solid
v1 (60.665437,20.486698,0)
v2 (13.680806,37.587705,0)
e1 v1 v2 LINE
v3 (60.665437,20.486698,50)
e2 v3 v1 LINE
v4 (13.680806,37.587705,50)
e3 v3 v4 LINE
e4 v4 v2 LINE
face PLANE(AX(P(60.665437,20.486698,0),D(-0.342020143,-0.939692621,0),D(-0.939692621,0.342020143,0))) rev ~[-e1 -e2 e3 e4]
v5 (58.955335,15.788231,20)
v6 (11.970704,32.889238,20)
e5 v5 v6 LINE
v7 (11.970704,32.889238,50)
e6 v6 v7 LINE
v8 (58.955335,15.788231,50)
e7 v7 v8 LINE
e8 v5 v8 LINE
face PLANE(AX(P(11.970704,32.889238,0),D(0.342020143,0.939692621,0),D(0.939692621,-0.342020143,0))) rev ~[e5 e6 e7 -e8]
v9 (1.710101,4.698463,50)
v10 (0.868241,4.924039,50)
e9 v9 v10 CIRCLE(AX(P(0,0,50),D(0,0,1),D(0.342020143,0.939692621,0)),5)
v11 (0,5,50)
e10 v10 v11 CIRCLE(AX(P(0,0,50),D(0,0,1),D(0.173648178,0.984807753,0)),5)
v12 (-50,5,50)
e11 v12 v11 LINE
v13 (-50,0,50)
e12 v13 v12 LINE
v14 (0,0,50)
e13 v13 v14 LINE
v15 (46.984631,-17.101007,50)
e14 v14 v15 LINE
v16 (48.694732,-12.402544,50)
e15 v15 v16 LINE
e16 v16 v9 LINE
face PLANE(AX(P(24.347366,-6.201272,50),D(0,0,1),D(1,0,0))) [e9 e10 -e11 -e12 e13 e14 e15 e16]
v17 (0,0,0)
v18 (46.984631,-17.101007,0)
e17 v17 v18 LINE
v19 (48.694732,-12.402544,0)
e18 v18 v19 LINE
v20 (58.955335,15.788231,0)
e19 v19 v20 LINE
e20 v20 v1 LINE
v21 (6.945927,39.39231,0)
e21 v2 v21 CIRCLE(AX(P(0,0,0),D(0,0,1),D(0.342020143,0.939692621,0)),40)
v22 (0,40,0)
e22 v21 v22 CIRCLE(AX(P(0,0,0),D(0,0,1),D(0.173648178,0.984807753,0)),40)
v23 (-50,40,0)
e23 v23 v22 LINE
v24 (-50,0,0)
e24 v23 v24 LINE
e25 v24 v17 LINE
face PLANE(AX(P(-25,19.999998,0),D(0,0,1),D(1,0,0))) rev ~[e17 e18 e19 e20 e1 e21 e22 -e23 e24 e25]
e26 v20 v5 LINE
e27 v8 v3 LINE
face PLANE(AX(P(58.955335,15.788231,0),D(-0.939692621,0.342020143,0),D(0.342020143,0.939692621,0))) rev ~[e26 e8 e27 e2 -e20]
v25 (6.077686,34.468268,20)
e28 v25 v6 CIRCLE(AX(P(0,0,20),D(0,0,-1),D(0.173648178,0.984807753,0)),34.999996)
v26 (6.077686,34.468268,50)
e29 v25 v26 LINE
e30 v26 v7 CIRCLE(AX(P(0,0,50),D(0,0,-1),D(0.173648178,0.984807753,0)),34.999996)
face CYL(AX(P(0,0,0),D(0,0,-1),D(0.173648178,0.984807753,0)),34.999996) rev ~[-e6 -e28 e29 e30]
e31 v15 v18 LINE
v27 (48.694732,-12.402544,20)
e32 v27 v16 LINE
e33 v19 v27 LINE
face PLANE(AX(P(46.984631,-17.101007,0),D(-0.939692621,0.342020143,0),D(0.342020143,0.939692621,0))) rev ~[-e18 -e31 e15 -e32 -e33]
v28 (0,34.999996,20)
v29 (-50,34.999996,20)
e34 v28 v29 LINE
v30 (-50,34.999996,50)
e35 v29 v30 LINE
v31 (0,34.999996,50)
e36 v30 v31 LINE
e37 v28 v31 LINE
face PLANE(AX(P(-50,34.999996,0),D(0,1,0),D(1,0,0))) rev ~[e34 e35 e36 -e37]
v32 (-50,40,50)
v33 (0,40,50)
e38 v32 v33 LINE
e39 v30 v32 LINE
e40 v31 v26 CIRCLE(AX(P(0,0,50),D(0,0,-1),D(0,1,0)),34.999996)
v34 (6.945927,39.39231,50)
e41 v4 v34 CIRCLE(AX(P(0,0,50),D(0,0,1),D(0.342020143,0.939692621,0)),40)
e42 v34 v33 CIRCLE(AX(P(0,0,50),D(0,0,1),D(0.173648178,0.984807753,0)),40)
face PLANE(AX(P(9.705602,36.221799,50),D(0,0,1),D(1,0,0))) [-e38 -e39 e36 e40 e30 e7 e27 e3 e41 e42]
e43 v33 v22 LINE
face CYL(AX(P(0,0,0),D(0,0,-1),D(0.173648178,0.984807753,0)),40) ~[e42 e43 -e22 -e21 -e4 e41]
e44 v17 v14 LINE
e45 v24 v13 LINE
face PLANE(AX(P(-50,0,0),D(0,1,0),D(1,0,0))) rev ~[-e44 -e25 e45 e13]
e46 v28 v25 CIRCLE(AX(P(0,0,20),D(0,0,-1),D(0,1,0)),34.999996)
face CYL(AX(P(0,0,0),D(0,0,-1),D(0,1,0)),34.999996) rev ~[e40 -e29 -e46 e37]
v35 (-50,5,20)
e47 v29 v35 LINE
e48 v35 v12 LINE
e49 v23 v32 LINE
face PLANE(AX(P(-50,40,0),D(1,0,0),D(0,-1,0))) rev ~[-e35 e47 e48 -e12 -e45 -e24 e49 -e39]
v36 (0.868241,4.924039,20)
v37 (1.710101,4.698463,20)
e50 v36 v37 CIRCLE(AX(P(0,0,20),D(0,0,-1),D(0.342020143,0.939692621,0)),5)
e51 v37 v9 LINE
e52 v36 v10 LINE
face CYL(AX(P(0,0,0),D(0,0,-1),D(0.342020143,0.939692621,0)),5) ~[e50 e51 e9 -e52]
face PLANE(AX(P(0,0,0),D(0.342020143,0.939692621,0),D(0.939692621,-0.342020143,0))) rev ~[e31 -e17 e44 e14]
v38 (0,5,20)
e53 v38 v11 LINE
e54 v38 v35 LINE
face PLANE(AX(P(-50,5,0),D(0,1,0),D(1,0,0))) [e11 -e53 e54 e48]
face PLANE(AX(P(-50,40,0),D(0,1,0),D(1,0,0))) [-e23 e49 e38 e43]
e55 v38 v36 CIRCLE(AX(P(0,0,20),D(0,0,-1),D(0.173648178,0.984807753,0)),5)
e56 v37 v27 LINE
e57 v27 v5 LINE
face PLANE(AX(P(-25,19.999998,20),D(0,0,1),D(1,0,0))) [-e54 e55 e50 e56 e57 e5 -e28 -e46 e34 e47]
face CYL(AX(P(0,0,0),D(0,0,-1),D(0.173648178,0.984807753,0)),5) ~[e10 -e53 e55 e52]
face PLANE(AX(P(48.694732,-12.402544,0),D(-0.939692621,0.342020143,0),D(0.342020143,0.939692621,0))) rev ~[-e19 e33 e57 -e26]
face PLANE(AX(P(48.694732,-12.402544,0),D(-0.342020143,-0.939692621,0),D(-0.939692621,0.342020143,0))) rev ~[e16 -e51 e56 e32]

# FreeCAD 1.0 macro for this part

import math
import FreeCAD as App
import Part
import Sketcher

V = App.Vector
Q = App.Units.Quantity

doc = App.newDocument("Part")
body = doc.addObject("PartDesign::Body", "Body")

# Sketch on XY plane
sketch1 = body.newObject("Sketcher::SketchObject", "Sketch")
sketch1.AttachmentSupport = (doc.getObject("XY_Plane"), [""])
sketch1.MapMode = "FlatFace"
sketch1.addGeometry(Part.LineSegment(V(0, 40, 0), V(-50, 40, 0)), False)
sketch1.addGeometry(Part.LineSegment(V(-50, 40, 0), V(-50, 0, 0)), False)
sketch1.addGeometry(Part.LineSegment(V(-50, 0, 0), V(0, 0, 0)), False)
sketch1.addGeometry(Part.LineSegment(V(0, 0, 0), V(46.984631, -17.101007, 0)), False)
sketch1.addGeometry(Part.LineSegment(V(46.984631, -17.101007, 0), V(48.694732, -12.402544, 0)), False)
sketch1.addGeometry(Part.LineSegment(V(48.694732, -12.402544, 0), V(58.955335, 15.788231, 0)), False)
sketch1.addGeometry(Part.LineSegment(V(58.955335, 15.788231, 0), V(60.665437, 20.486698, 0)), False)
sketch1.addGeometry(Part.LineSegment(V(60.665437, 20.486698, 0), V(13.680806, 37.587705, 0)), False)
sketch1.addGeometry(Part.ArcOfCircle(Part.Circle(V(0, 0, 0), V(0, 0, 1), 40), math.radians(70), math.radians(80)), False)
sketch1.addGeometry(Part.ArcOfCircle(Part.Circle(V(0, 0, 0), V(0, 0, 1), 40), math.radians(80), math.radians(90)), False)
sketch1.addConstraint(Sketcher.Constraint("Coincident", 0, 2, 1, 1))
sketch1.addConstraint(Sketcher.Constraint("Coincident", 1, 2, 2, 1))
sketch1.addConstraint(Sketcher.Constraint("Coincident", 2, 2, 3, 1))
sketch1.addConstraint(Sketcher.Constraint("Coincident", 3, 2, 4, 1))
sketch1.addConstraint(Sketcher.Constraint("Coincident", 4, 2, 5, 1))
sketch1.addConstraint(Sketcher.Constraint("Coincident", 5, 2, 6, 1))
sketch1.addConstraint(Sketcher.Constraint("Coincident", 6, 2, 7, 1))
sketch1.addConstraint(Sketcher.Constraint("Tangent", 7, 2, 8, 1))
sketch1.addConstraint(Sketcher.Constraint("Tangent", 8, 2, 9, 1))
sketch1.addConstraint(Sketcher.Constraint("Tangent", 9, 2, 0, 1))
sketch1.addConstraint(Sketcher.Constraint("Horizontal", 0))
sketch1.addConstraint(Sketcher.Constraint("Vertical", 1))
sketch1.addConstraint(Sketcher.Constraint("Horizontal", 2))
sketch1.addConstraint(Sketcher.Constraint("Coincident", 8, 3, -1, 1))
sketch1.addConstraint(Sketcher.Constraint("Coincident", 2, 2, -1, 1))
sketch1.addConstraint(Sketcher.Constraint("Equal", 8, 9))
sketch1.addConstraint(Sketcher.Constraint("Perpendicular", 3, 4))
sketch1.addConstraint(Sketcher.Constraint("Parallel", 4, 5))
sketch1.addConstraint(Sketcher.Constraint("Parallel", 5, 6))
sketch1.addConstraint(Sketcher.Constraint("Perpendicular", 6, 7))
sketch1.addConstraint(Sketcher.Constraint("Radius", 8, Q("40 mm")))
sketch1.addConstraint(Sketcher.Constraint("DistanceX", 0, 2, 0, 1, Q("50 mm")))
sketch1.addConstraint(Sketcher.Constraint("Angle", 3, Q("-20 deg")))
sketch1.addConstraint(Sketcher.Constraint("Distance", 3, Q("50 mm")))
sketch1.addConstraint(Sketcher.Constraint("Distance", 4, Q("5 mm")))
sketch1.addConstraint(Sketcher.Constraint("DistanceX", 5, 2, 6, 2, Q("1.710102 mm")))
sketch1.addConstraint(Sketcher.Constraint("DistanceY", -1, 1, 8, 2, Q("39.39231 mm")))
pad1 = body.newObject("PartDesign::Pad", "Pad")
pad1.Profile = sketch1
pad1.Length = 20

# Sketch on XY plane
sketch2 = body.newObject("Sketcher::SketchObject", "Sketch001")
sketch2.AttachmentSupport = (doc.getObject("XY_Plane"), [""])
sketch2.MapMode = "FlatFace"
sketch2.addGeometry(Part.ArcOfCircle(Part.Circle(V(0, 0, 0), V(0, 0, 1), 34.999996), math.radians(70), math.radians(80)), False)
sketch2.addGeometry(Part.LineSegment(V(11.970704, 32.889238, 0), V(58.955335, 15.788231, 0)), False)
sketch2.addGeometry(Part.LineSegment(V(58.955335, 15.788231, 0), V(60.665437, 20.486698, 0)), False)
sketch2.addGeometry(Part.LineSegment(V(60.665437, 20.486698, 0), V(13.680806, 37.587705, 0)), False)
sketch2.addGeometry(Part.ArcOfCircle(Part.Circle(V(0, 0, 0), V(0, 0, 1), 40), math.radians(70), math.radians(80)), False)
sketch2.addGeometry(Part.ArcOfCircle(Part.Circle(V(0, 0, 0), V(0, 0, 1), 40), math.radians(80), math.radians(90)), False)
sketch2.addGeometry(Part.LineSegment(V(0, 40, 0), V(-50, 40, 0)), False)
sketch2.addGeometry(Part.LineSegment(V(-50, 40, 0), V(-50, 34.999996, 0)), False)
sketch2.addGeometry(Part.LineSegment(V(-50, 34.999996, 0), V(0, 34.999996, 0)), False)
sketch2.addGeometry(Part.ArcOfCircle(Part.Circle(V(0, 0, 0), V(0, 0, 1), 34.999996), math.radians(80), math.radians(90)), False)
sketch2.addGeometry(Part.LineSegment(V(0, 0, 0), V(46.984631, -17.101007, 0)), False)
sketch2.addGeometry(Part.LineSegment(V(46.984631, -17.101007, 0), V(48.694732, -12.402544, 0)), False)
sketch2.addGeometry(Part.LineSegment(V(48.694732, -12.402544, 0), V(1.710101, 4.698463, 0)), False)
sketch2.addGeometry(Part.ArcOfCircle(Part.Circle(V(0, 0, 0), V(0, 0, 1), 5), math.radians(70), math.radians(80)), False)
sketch2.addGeometry(Part.ArcOfCircle(Part.Circle(V(0, 0, 0), V(0, 0, 1), 5), math.radians(80), math.radians(90)), False)
sketch2.addGeometry(Part.LineSegment(V(0, 5, 0), V(-50, 5, 0)), False)
sketch2.addGeometry(Part.LineSegment(V(-50, 5, 0), V(-50, 0, 0)), False)
sketch2.addGeometry(Part.LineSegment(V(-50, 0, 0), V(0, 0, 0)), False)
sketch2.addConstraint(Sketcher.Constraint("Tangent", 0, 1, 1, 1))
sketch2.addConstraint(Sketcher.Constraint("Coincident", 1, 2, 2, 1))
sketch2.addConstraint(Sketcher.Constraint("Coincident", 2, 2, 3, 1))
sketch2.addConstraint(Sketcher.Constraint("Tangent", 3, 2, 4, 1))
sketch2.addConstraint(Sketcher.Constraint("Tangent", 4, 2, 5, 1))
sketch2.addConstraint(Sketcher.Constraint("Tangent", 5, 2, 6, 1))
sketch2.addConstraint(Sketcher.Constraint("Coincident", 6, 2, 7, 1))
sketch2.addConstraint(Sketcher.Constraint("Coincident", 7, 2, 8, 1))
sketch2.addConstraint(Sketcher.Constraint("Tangent", 8, 2, 9, 2))
sketch2.addConstraint(Sketcher.Constraint("Tangent", 9, 1, 0, 2))
sketch2.addConstraint(Sketcher.Constraint("Coincident", 10, 2, 11, 1))
sketch2.addConstraint(Sketcher.Constraint("Coincident", 11, 2, 12, 1))
sketch2.addConstraint(Sketcher.Constraint("Tangent", 12, 2, 13, 1))
sketch2.addConstraint(Sketcher.Constraint("Tangent", 13, 2, 14, 1))
sketch2.addConstraint(Sketcher.Constraint("Tangent", 14, 2, 15, 1))
sketch2.addConstraint(Sketcher.Constraint("Coincident", 15, 2, 16, 1))
sketch2.addConstraint(Sketcher.Constraint("Coincident", 16, 2, 17, 1))
sketch2.addConstraint(Sketcher.Constraint("Coincident", 17, 2, 10, 1))
sketch2.addConstraint(Sketcher.Constraint("Horizontal", 6))
sketch2.addConstraint(Sketcher.Constraint("Vertical", 7))
sketch2.addConstraint(Sketcher.Constraint("Horizontal", 8))
sketch2.addConstraint(Sketcher.Constraint("Horizontal", 15))
sketch2.addConstraint(Sketcher.Constraint("Vertical", 16))
sketch2.addConstraint(Sketcher.Constraint("Horizontal", 17))
sketch2.addConstraint(Sketcher.Constraint("Coincident", 0, 3, -1, 1))
sketch2.addConstraint(Sketcher.Constraint("Coincident", 4, 3, -1, 1))
sketch2.addConstraint(Sketcher.Constraint("Coincident", 13, 3, -1, 1))
sketch2.addConstraint(Sketcher.Constraint("Coincident", 17, 2, -1, 1))
sketch2.addConstraint(Sketcher.Constraint("Equal", 4, 5))
sketch2.addConstraint(Sketcher.Constraint("Equal", 0, 9))
sketch2.addConstraint(Sketcher.Constraint("Equal", 13, 14))
sketch2.addConstraint(Sketcher.Constraint("Perpendicular", 1, 2))
sketch2.addConstraint(Sketcher.Constraint("Perpendicular", 2, 3))
sketch2.addConstraint(Sketcher.Constraint("Parallel", 3, 10))
sketch2.addConstraint(Sketcher.Constraint("Perpendicular", 10, 11))
sketch2.addConstraint(Sketcher.Constraint("Perpendicular", 11, 12))
sketch2.addConstraint(Sketcher.Constraint("Vertical", 7, 2, 15, 2))
sketch2.addConstraint(Sketcher.Constraint("Equal", 3, 10))
sketch2.addConstraint(Sketcher.Constraint("Radius", 4, Q("40 mm")))
sketch2.addConstraint(Sketcher.Constraint("Radius", 13, Q("5 mm")))
sketch2.addConstraint(Sketcher.Constraint("DistanceX", 6, 2, 6, 1, Q("50 mm")))
sketch2.addConstraint(Sketcher.Constraint("Angle", 1, Q("-20 deg")))
sketch2.addConstraint(Sketcher.Constraint("Distance", 1, Q("50 mm")))
sketch2.addConstraint(Sketcher.Constraint("Radius", 0, Q("34.999996 mm")))
sketch2.addConstraint(Sketcher.Constraint("DistanceY", -1, 1, 4, 2, Q("39.39231 mm")))
sketch2.addConstraint(Sketcher.Constraint("DistanceX", -1, 1, 13, 2, Q("0.868241 mm")))
sketch2.addConstraint(Sketcher.Constraint("DistanceX", 9, 1, 4, 2, Q("0.868242 mm")))
pad2 = body.newObject("PartDesign::Pad", "Pad001")
pad2.Profile = sketch2
pad2.Length = 50

doc.recompute()
